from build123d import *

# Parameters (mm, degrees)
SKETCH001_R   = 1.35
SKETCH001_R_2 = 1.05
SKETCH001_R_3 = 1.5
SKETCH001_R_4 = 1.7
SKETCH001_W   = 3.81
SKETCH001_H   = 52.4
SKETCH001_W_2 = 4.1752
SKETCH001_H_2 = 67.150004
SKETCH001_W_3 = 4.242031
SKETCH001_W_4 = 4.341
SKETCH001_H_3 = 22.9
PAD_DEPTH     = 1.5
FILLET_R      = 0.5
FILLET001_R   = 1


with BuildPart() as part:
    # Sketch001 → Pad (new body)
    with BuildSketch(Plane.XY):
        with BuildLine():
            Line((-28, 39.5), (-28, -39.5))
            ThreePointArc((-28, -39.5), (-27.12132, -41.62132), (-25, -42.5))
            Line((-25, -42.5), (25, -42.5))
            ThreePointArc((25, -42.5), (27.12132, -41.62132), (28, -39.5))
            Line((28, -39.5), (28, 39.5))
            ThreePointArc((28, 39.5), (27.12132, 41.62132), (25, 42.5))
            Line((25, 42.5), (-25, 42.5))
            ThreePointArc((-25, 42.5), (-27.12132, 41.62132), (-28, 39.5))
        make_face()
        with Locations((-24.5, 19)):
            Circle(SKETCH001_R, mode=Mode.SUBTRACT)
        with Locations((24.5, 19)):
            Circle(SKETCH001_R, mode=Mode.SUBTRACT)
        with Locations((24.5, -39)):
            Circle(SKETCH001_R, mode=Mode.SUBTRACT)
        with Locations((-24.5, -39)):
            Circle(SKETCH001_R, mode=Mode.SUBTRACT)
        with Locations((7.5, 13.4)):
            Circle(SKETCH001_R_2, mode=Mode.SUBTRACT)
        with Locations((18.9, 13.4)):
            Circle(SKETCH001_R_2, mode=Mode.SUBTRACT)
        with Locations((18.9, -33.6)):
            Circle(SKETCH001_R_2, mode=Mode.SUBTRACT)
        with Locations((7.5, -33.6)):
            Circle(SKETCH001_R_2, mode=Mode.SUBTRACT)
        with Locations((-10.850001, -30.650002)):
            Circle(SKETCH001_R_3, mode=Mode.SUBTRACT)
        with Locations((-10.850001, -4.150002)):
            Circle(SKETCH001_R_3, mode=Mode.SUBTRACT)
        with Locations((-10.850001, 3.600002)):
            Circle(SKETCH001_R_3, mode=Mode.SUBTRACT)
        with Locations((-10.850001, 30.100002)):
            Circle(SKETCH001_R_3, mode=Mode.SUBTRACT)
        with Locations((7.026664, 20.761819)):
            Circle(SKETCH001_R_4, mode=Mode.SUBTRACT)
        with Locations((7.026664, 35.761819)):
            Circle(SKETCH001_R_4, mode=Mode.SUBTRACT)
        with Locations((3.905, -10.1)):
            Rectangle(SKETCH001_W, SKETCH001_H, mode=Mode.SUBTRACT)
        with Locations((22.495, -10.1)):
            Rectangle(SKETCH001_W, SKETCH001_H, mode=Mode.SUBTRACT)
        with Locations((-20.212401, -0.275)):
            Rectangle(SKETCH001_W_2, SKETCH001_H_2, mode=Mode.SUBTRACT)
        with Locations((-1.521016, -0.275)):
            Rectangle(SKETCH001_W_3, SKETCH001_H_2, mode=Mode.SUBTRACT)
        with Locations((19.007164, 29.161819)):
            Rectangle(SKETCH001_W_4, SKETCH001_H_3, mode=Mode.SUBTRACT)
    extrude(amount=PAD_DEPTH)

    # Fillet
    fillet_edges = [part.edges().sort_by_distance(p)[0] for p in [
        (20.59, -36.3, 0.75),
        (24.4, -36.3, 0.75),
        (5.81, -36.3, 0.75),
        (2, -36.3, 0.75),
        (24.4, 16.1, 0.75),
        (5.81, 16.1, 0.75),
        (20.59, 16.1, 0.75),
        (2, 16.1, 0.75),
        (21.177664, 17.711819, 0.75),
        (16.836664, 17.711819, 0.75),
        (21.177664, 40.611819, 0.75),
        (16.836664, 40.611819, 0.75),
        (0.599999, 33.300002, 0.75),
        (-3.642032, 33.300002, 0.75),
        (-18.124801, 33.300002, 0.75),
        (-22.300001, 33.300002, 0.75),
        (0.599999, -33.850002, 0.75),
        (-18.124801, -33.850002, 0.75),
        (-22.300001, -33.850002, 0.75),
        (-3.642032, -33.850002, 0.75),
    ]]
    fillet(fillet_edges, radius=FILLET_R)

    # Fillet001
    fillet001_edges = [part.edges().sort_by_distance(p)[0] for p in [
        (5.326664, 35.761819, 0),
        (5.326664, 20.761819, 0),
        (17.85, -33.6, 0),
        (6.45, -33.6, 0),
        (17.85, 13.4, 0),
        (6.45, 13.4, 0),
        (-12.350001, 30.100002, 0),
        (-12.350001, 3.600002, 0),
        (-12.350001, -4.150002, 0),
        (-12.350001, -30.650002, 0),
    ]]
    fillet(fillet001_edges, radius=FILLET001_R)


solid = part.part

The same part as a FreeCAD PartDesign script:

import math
import FreeCAD as App
import Part
import Sketcher
from FreeCAD import Vector


def edges_at(feature, points):
    """Names of the edges that pass closest to the given points."""
    edges = feature.Shape.Edges
    near = lambda p: min(range(len(edges)), key=lambda i: edges[i].distToShape(Part.Vertex(*p))[0])
    return sorted({f"Edge{near(p) + 1}" for p in points})


def add_polygon(sketch, points):
    """Adds a closed chain of lines whose ends are joined by coincident constraints."""
    first, n = sketch.GeometryCount, len(points)
    for a, b in zip(points, points[1:] + points[:1]):
        sketch.addGeometry(Part.LineSegment(App.Vector(*a, 0), App.Vector(*b, 0)), False)
    for i in range(n):
        sketch.addConstraint(Sketcher.Constraint("Coincident", first + i, 2, first + (i + 1) % n, 1))

doc = App.newDocument("Part")
params = doc.addObject("Spreadsheet::Sheet", "Params")
for row, (alias, value) in enumerate([
    ("sketch1_diameter", "3 mm"),
    ("sketch1_radius", "3.000001 mm"),
    ("sketch1_diameter2", "2.7 mm"),
    ("sketch1_diameter3", "2.1 mm"),
    ("sketch1_diameter4", "3.4 mm"),
    ("pad1_length", "1.5 mm"),
    ("fillet_radius", "0.5 mm"),
    ("fillet2_radius", "1 mm"),
], start=1):
    params.set(f"A{row}", alias)
    params.set(f"B{row}", "=" + value)
    params.setAlias(f"B{row}", alias)

body = doc.addObject("PartDesign::Body", "Body")

# Sketch on XY plane
sketch1 = body.newObject("Sketcher::SketchObject", "Sketch")
sketch1.AttachmentSupport = (doc.getObject("XY_Plane"), [""])
sketch1.MapMode = "FlatFace"
sketch1.addGeometry(Part.LineSegment(Vector(-28, 39.5, 0), Vector(-28, -39.5, 0)), False)  # 0
sketch1.addGeometry(Part.ArcOfCircle(Part.Circle(Vector(-25, -39.5, 0), Vector(0, 0, 1), 3), math.radians(-180), math.radians(-90)), False)  # 1
sketch1.addGeometry(Part.LineSegment(Vector(-25, -42.5, 0), Vector(25, -42.5, 0)), False)  # 2
sketch1.addGeometry(Part.ArcOfCircle(Part.Circle(Vector(25, -39.5, 0), Vector(0, 0, 1), 3), math.radians(-90), math.radians(0)), False)  # 3
sketch1.addGeometry(Part.LineSegment(Vector(28, -39.5, 0), Vector(28, 39.5, 0)), False)  # 4
sketch1.addGeometry(Part.ArcOfCircle(Part.Circle(Vector(25, 39.5, 0), Vector(0, 0, 1), 3), math.radians(0), math.radians(90)), False)  # 5
sketch1.addGeometry(Part.LineSegment(Vector(25, 42.5, 0), Vector(-25, 42.5, 0)), False)  # 6
sketch1.addGeometry(Part.ArcOfCircle(Part.Circle(Vector(-25, 39.5, 0), Vector(0, 0, 1), 3), math.radians(90), math.radians(180)), False)  # 7
sketch1.addGeometry(Part.Circle(Vector(-24.5, -39, 0), Vector(0, 0, 1), 1.4), False)  # 8
sketch1.addGeometry(Part.Circle(Vector(-10.9, -30.7, 0), Vector(0, 0, 1), 1.5), False)  # 9
add_polygon(sketch1, [(-18.1, -33.9), (-22.3, -33.9), (-22.3, 33.3), (-18.1, 33.3)])  # lines 10-13
sketch1.addGeometry(Part.Circle(Vector(-10.9, -4.2, 0), Vector(0, 0, 1), 1.5), False)  # 14
add_polygon(sketch1, [(0.6, -33.9), (-3.6, -33.9), (-3.6, 33.3), (0.6, 33.3)])  # lines 15-18
sketch1.addGeometry(Part.Circle(Vector(7.5, -33.6, 0), Vector(0, 0, 1), 1.1), False)  # 19
sketch1.addGeometry(Part.Circle(Vector(18.9, -33.6, 0), Vector(0, 0, 1), 1.1), False)  # 20
sketch1.addGeometry(Part.Circle(Vector(24.5, -39, 0), Vector(0, 0, 1), 1.4), False)  # 21
add_polygon(sketch1, [(5.8, -36.3), (2, -36.3), (2, 16.1), (5.8, 16.1)])  # lines 22-25
add_polygon(sketch1, [(24.4, -36.3), (20.6, -36.3), (20.6, 16.1), (24.4, 16.1)])  # lines 26-29
sketch1.addGeometry(Part.Circle(Vector(-24.5, 19, 0), Vector(0, 0, 1), 1.4), False)  # 30
sketch1.addGeometry(Part.Circle(Vector(-10.9, 3.6, 0), Vector(0, 0, 1), 1.5), False)  # 31
sketch1.addGeometry(Part.Circle(Vector(-10.9, 30.1, 0), Vector(0, 0, 1), 1.5), False)  # 32
sketch1.addGeometry(Part.Circle(Vector(7.5, 13.4, 0), Vector(0, 0, 1), 1.1), False)  # 33
sketch1.addGeometry(Part.Circle(Vector(18.9, 13.4, 0), Vector(0, 0, 1), 1.1), False)  # 34
sketch1.addGeometry(Part.Circle(Vector(24.5, 19, 0), Vector(0, 0, 1), 1.4), False)  # 35
sketch1.addGeometry(Part.Circle(Vector(7, 20.8, 0), Vector(0, 0, 1), 1.7), False)  # 36
sketch1.addGeometry(Part.Circle(Vector(7, 35.8, 0), Vector(0, 0, 1), 1.7), False)  # 37
add_polygon(sketch1, [(21.2, 17.7), (16.8, 17.7), (16.8, 40.6), (21.2, 40.6)])  # lines 38-41
sketch1.addConstraint([
    Sketcher.Constraint("Tangent", 0, 2, 1, 1),
    Sketcher.Constraint("Tangent", 1, 2, 2, 1),
    Sketcher.Constraint("Tangent", 2, 2, 3, 1),
    Sketcher.Constraint("Tangent", 3, 2, 4, 1),
    Sketcher.Constraint("Tangent", 4, 2, 5, 1),
    Sketcher.Constraint("Tangent", 5, 2, 6, 1),
    Sketcher.Constraint("Tangent", 6, 2, 7, 1),
    Sketcher.Constraint("Tangent", 7, 2, 0, 1),
    Sketcher.Constraint("Vertical", 0),
    Sketcher.Constraint("Horizontal", 2),
    Sketcher.Constraint("Vertical", 4),
    Sketcher.Constraint("Horizontal", 6),
    Sketcher.Constraint("Horizontal", 10),
    Sketcher.Constraint("Vertical", 11),
    Sketcher.Constraint("Horizontal", 12),
    Sketcher.Constraint("Vertical", 13),
    Sketcher.Constraint("Horizontal", 15),
    Sketcher.Constraint("Vertical", 16),
    Sketcher.Constraint("Horizontal", 17),
    Sketcher.Constraint("Vertical", 18),
    Sketcher.Constraint("Horizontal", 22),
    Sketcher.Constraint("Vertical", 23),
    Sketcher.Constraint("Horizontal", 24),
    Sketcher.Constraint("Vertical", 25),
    Sketcher.Constraint("Horizontal", 26),
    Sketcher.Constraint("Vertical", 27),
    Sketcher.Constraint("Horizontal", 28),
    Sketcher.Constraint("Vertical", 29),
    Sketcher.Constraint("Horizontal", 38),
    Sketcher.Constraint("Vertical", 39),
    Sketcher.Constraint("Horizontal", 40),
    Sketcher.Constraint("Vertical", 41),
    Sketcher.Constraint("Equal", 1, 3),
    Sketcher.Constraint("Equal", 3, 5),
    Sketcher.Constraint("Equal", 5, 7),
    Sketcher.Constraint("Equal", 9, 14),
    Sketcher.Constraint("Equal", 19, 20),
    Sketcher.Constraint("Equal", 8, 21),
    Sketcher.Constraint("Equal", 21, 30),
    Sketcher.Constraint("Equal", 14, 31),
    Sketcher.Constraint("Equal", 31, 32),
    Sketcher.Constraint("Equal", 20, 33),
    Sketcher.Constraint("Equal", 33, 34),
    Sketcher.Constraint("Equal", 30, 35),
    Sketcher.Constraint("Equal", 36, 37),
    Sketcher.Constraint("Symmetric", 1, 3, 5, 3, -1, 1),
    Sketcher.Constraint("Symmetric", 8, 3, 21, 3, -2),
    Sketcher.Constraint("Symmetric", 30, 3, 35, 3, -2),
    Sketcher.Constraint("Horizontal", 19, 3, 20, 3),
    Sketcher.Constraint("Horizontal", 33, 3, 34, 3),
    Sketcher.Constraint("Horizontal", 13, 2, 15, 2),
    Sketcher.Constraint("Horizontal", 12, 2, 16, 2),
    Sketcher.Constraint("Horizontal", 25, 2, 26, 2),
    Sketcher.Constraint("Horizontal", 24, 2, 27, 2),
    Sketcher.Constraint("Vertical", 9, 3, 14, 3),
    Sketcher.Constraint("Vertical", 8, 3, 30, 3),
    Sketcher.Constraint("Vertical", 14, 3, 31, 3),
    Sketcher.Constraint("Vertical", 31, 3, 32, 3),
    Sketcher.Constraint("Vertical", 19, 3, 33, 3),
    Sketcher.Constraint("Vertical", 20, 3, 34, 3),
    Sketcher.Constraint("Vertical", 36, 3, 37, 3),
    Sketcher.Constraint("Equal", 24, 26),
    Sketcher.Constraint("Diameter", 9, 3.0),
    Sketcher.Constraint("Radius", 1, 3.000001),
    Sketcher.Constraint("Diameter", 8, 2.7),
    Sketcher.Constraint("Diameter", 19, 2.1),
    Sketcher.Constraint("Diameter", 36, 3.4),
    Sketcher.Constraint("DistanceX", 2, 1, 2, 2, 50.0),
    Sketcher.Constraint("DistanceY", 0, 2, 0, 1, 79.0),
    Sketcher.Constraint("DistanceY", 23, 1, 23, 2, 52.4),
    Sketcher.Constraint("DistanceY", 39, 1, 39, 2, 22.9),
    Sketcher.Constraint("DistanceY", 8, 3, -1, 1, 39.0),
    Sketcher.Constraint("DistanceY", -1, 1, 30, 3, 19.0),
    Sketcher.Constraint("DistanceX", -1, 1, 22, 2, 2.0),
    Sketcher.Constraint("DistanceX", 8, 3, 19, 3, 32.0),
    Sketcher.Constraint("DistanceX", 19, 3, 21, 3, 17.0),
    Sketcher.Constraint("DistanceY", 36, 3, 37, 3, 15.0),
    Sketcher.Constraint("DistanceX", 22, 2, 22, 1, 3.81),
    Sketcher.Constraint("DistanceY", 19, 3, -1, 1, 33.6),
    Sketcher.Constraint("DistanceX", -1, 1, 20, 3, 18.9),
    Sketcher.Constraint("DistanceY", -1, 1, 31, 3, 3.600002),
    Sketcher.Constraint("DistanceY", -1, 1, 32, 3, 30.100002),
    Sketcher.Constraint("DistanceY", -1, 1, 33, 3, 13.4),
    Sketcher.Constraint("DistanceX", 10, 2, -1, 1, 22.300001),
    Sketcher.Constraint("DistanceX", -1, 1, 17, 2, 0.6),
    Sketcher.Constraint("DistanceY", 22, 2, -1, 1, 36.3),
    Sketcher.Constraint("DistanceX", -1, 1, 28, 2, 24.4),
    Sketcher.Constraint("DistanceY", 9, 3, 14, 3, 26.5),
    Sketcher.Constraint("DistanceY", 10, 2, 9, 3, 3.2),
    Sketcher.Constraint("DistanceY", 11, 2, 7, 2, 6.199998),
    Sketcher.Constraint("DistanceX", 38, 2, 38, 1, 4.341),
    Sketcher.Constraint("DistanceX", 9, 3, -1, 1, 10.850001),
    Sketcher.Constraint("DistanceY", 14, 3, -1, 1, 4.150002),
    Sketcher.Constraint("DistanceX", 36, 3, 38, 2, 9.81),
    Sketcher.Constraint("DistanceY", 38, 2, 36, 3, 3.05),
    Sketcher.Constraint("DistanceX", 10, 2, 10, 1, 4.1752),
    Sketcher.Constraint("DistanceX", 15, 2, 15, 1, 4.242031),
    Sketcher.Constraint("DistanceY", -1, 1, 36, 3, 20.761819),
    Sketcher.Constraint("DistanceX", -1, 1, 36, 3, 7.026664),
])
sketch1.setExpression("Constraints[82]", "Params.sketch1_diameter")
sketch1.setExpression("Constraints[83]", "Params.sketch1_radius")
sketch1.setExpression("Constraints[84]", "Params.sketch1_diameter2")
sketch1.setExpression("Constraints[85]", "Params.sketch1_diameter3")
sketch1.setExpression("Constraints[86]", "Params.sketch1_diameter4")
pad1 = body.newObject("PartDesign::Pad", "Pad")
pad1.Profile = sketch1
pad1.setExpression("Length", "Params.pad1_length")
doc.recompute()

fillet = body.newObject("PartDesign::Fillet", "Fillet")
fillet.Base = (pad1, edges_at(pad1, [
    (20.59, -36.3, 0.75),
    (24.4, -36.3, 0.75),
    (5.81, -36.3, 0.75),
    (2, -36.3, 0.75),
    (24.4, 16.1, 0.75),
    (5.81, 16.1, 0.75),
    (20.59, 16.1, 0.75),
    (2, 16.1, 0.75),
    (21.178, 17.712, 0.75),
    (16.837, 17.712, 0.75),
    (21.178, 40.612, 0.75),
    (16.837, 40.612, 0.75),
    (0.6, 33.3, 0.75),
    (-3.642, 33.3, 0.75),
    (-18.125, 33.3, 0.75),
    (-22.3, 33.3, 0.75),
    (0.6, -33.85, 0.75),
    (-18.125, -33.85, 0.75),
    (-22.3, -33.85, 0.75),
    (-3.642, -33.85, 0.75),
]))
fillet.setExpression("Radius", "Params.fillet_radius")
doc.recompute()

fillet2 = body.newObject("PartDesign::Fillet", "Fillet001")
fillet2.Base = (fillet, edges_at(fillet, [
    (5.327, 35.762, 0),
    (5.327, 20.762, 0),
    (17.85, -33.6, 0),
    (6.45, -33.6, 0),
    (17.85, 13.4, 0),
    (6.45, 13.4, 0),
    (-12.35, 30.1, 0),
    (-12.35, 3.6, 0),
    (-12.35, -4.15, 0),
    (-12.35, -30.65, 0),
]))
fillet2.setExpression("Radius", "Params.fillet2_radius")

doc.recompute()
